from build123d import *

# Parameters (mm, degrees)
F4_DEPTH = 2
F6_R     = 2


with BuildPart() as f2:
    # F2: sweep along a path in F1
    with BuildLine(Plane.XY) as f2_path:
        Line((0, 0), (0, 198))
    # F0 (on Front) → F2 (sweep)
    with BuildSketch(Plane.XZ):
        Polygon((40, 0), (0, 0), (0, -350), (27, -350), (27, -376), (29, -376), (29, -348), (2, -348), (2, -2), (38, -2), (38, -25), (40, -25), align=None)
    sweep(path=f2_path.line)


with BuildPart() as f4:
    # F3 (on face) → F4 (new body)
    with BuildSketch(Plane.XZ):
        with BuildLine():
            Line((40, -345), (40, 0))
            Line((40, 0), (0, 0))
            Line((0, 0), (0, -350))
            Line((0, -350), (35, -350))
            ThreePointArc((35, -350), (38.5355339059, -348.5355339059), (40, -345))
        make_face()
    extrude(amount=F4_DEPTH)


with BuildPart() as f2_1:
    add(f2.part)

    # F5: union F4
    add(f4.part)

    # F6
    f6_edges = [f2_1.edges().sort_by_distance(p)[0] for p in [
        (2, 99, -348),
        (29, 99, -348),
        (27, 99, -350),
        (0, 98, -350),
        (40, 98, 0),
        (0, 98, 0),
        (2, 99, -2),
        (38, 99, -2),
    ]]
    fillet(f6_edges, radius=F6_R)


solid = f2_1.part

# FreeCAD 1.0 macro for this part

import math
import FreeCAD as App
import Part
import Sketcher

V = App.Vector
Q = App.Units.Quantity


def edges_at(feature, points):
    """Names of the edges that pass closest to the given points."""
    edges = feature.Shape.Edges
    near = lambda p: min(range(len(edges)), key=lambda i: edges[i].distToShape(Part.Vertex(*p))[0])
    return sorted({f"Edge{near(p) + 1}" for p in points})


def add_polygon(sketch, points):
    """Adds a closed chain of lines whose ends are joined by coincident constraints."""
    first, n = sketch.GeometryCount, len(points)
    for a, b in zip(points, points[1:] + points[:1]):
        sketch.addGeometry(Part.LineSegment(App.Vector(*a, 0), App.Vector(*b, 0)), False)
    for i in range(n):
        sketch.addConstraint(Sketcher.Constraint("Coincident", first + i, 2, first + (i + 1) % n, 1))

doc = App.newDocument("Part")
params = doc.addObject("Spreadsheet::Sheet", "Params")
for row, (alias, value) in enumerate([
    ("sketch1_width", "40 mm"),
    ("sketch1_width2", "27 mm"),
    ("sketch1_width3", "2 mm"),
    ("sketch1_height", "350 mm"),
    ("sketch1_height2", "26 mm"),
    ("sketch2_height", "198 mm"),
    ("sketch3_radius", "5 mm"),
    ("sketch3_width", "40 mm"),
    ("sketch3_height", "345 mm"),
    ("pad1_length", "2 mm"),
    ("fillet_radius", "2 mm"),
], start=1):
    params.set(f"A{row}", alias)
    params.set(f"B{row}", "=" + value)
    params.setAlias(f"B{row}", alias)

body = doc.addObject("PartDesign::Body", "Body")

sketch1 = body.newObject("Sketcher::SketchObject", "Sketch")
sketch1.AttachmentSupport = (doc.getObject("XZ_Plane"), [""])
sketch1.MapMode = "FlatFace"
add_polygon(sketch1, [(40, 0), (0, 0), (0, -350), (27, -350), (27, -376), (29, -376), (29, -348), (2, -348), (2, -2), (38, -2), (38, -25), (40, -25)])
sketch1.addConstraint(Sketcher.Constraint("Horizontal", 0))
sketch1.addConstraint(Sketcher.Constraint("Vertical", 1))
sketch1.addConstraint(Sketcher.Constraint("Horizontal", 2))
sketch1.addConstraint(Sketcher.Constraint("Vertical", 3))
sketch1.addConstraint(Sketcher.Constraint("Horizontal", 4))
sketch1.addConstraint(Sketcher.Constraint("Vertical", 5))
sketch1.addConstraint(Sketcher.Constraint("Horizontal", 6))
sketch1.addConstraint(Sketcher.Constraint("Vertical", 7))
sketch1.addConstraint(Sketcher.Constraint("Horizontal", 8))
sketch1.addConstraint(Sketcher.Constraint("Vertical", 9))
sketch1.addConstraint(Sketcher.Constraint("Horizontal", 10))
sketch1.addConstraint(Sketcher.Constraint("Vertical", 11))
sketch1.addConstraint(Sketcher.Constraint("Coincident", 0, 2, -1, 1))
sketch1.addConstraint(Sketcher.Constraint("Equal", 2, 6))
sketch1.addConstraint(Sketcher.Constraint("Equal", 4, 10))
sketch1.addConstraint(Sketcher.Constraint("DistanceX", 0, 2, 0, 1, Q("40 mm")))
sketch1.addConstraint(Sketcher.Constraint("DistanceX", 2, 1, 2, 2, Q("27 mm")))
sketch1.addConstraint(Sketcher.Constraint("DistanceX", 4, 1, 4, 2, Q("2 mm")))
sketch1.addConstraint(Sketcher.Constraint("DistanceY", 1, 2, 1, 1, Q("350 mm")))
sketch1.addConstraint(Sketcher.Constraint("DistanceY", 3, 2, 3, 1, Q("26 mm")))
sketch1.addConstraint(Sketcher.Constraint("DistanceY", 5, 1, 5, 2, Q("28 mm")))
sketch1.addConstraint(Sketcher.Constraint("DistanceY", 7, 1, 7, 2, Q("346 mm")))
sketch1.addConstraint(Sketcher.Constraint("DistanceY", 9, 2, 9, 1, Q("23 mm")))
sketch1.setExpression("Constraints[27]", "Params.sketch1_width")
sketch1.setExpression("Constraints[28]", "Params.sketch1_width2")
sketch1.setExpression("Constraints[29]", "Params.sketch1_width3")
sketch1.setExpression("Constraints[30]", "Params.sketch1_height")
sketch1.setExpression("Constraints[31]", "Params.sketch1_height2")

sketch2 = body.newObject("Sketcher::SketchObject", "Sketch001")
sketch2.AttachmentSupport = (doc.getObject("XY_Plane"), [""])
sketch2.MapMode = "FlatFace"
sketch2.addGeometry(Part.LineSegment(V(0, 0, 0), V(0, 198, 0)), False)
sketch2.addConstraint(Sketcher.Constraint("Vertical", 0))
sketch2.addConstraint(Sketcher.Constraint("Coincident", 0, 1, -1, 1))
sketch2.addConstraint(Sketcher.Constraint("DistanceY", 0, 1, 0, 2, Q("198 mm")))
sketch2.setExpression("Constraints[2]", "Params.sketch2_height")
doc.recompute()

additivepipe = body.newObject("PartDesign::AdditivePipe", "AdditivePipe")
additivepipe.Profile = sketch1
additivepipe.Spine = (sketch2, ["Edge1"])
body2 = doc.addObject("PartDesign::Body", "Body001")

sketch3 = body2.newObject("Sketcher::SketchObject", "Sketch002")
sketch3.AttachmentSupport = (doc.getObject("XZ_Plane001"), [""])
sketch3.MapMode = "FlatFace"
sketch3.addGeometry(Part.LineSegment(V(40, -345, 0), V(40, 0, 0)), False)
sketch3.addGeometry(Part.LineSegment(V(40, 0, 0), V(0, 0, 0)), False)
sketch3.addGeometry(Part.LineSegment(V(0, 0, 0), V(0, -350, 0)), False)
sketch3.addGeometry(Part.LineSegment(V(0, -350, 0), V(35, -350, 0)), False)
sketch3.addGeometry(Part.ArcOfCircle(Part.Circle(V(35, -345, 0), V(0, 0, 1), 5), math.radians(-90), math.radians(0)), False)
sketch3.addConstraint(Sketcher.Constraint("Coincident", 0, 2, 1, 1))
sketch3.addConstraint(Sketcher.Constraint("Coincident", 1, 2, 2, 1))
sketch3.addConstraint(Sketcher.Constraint("Coincident", 2, 2, 3, 1))
sketch3.addConstraint(Sketcher.Constraint("Tangent", 3, 2, 4, 1))
sketch3.addConstraint(Sketcher.Constraint("Tangent", 4, 2, 0, 1))
sketch3.addConstraint(Sketcher.Constraint("Vertical", 0))
sketch3.addConstraint(Sketcher.Constraint("Horizontal", 1))
sketch3.addConstraint(Sketcher.Constraint("Vertical", 2))
sketch3.addConstraint(Sketcher.Constraint("Horizontal", 3))
sketch3.addConstraint(Sketcher.Constraint("Coincident", 1, 2, -1, 1))
sketch3.addConstraint(Sketcher.Constraint("Radius", 4, Q("5 mm")))
sketch3.addConstraint(Sketcher.Constraint("DistanceX", 1, 2, 1, 1, Q("40 mm")))
sketch3.addConstraint(Sketcher.Constraint("DistanceY", 0, 1, 0, 2, Q("345 mm")))
sketch3.setExpression("Constraints[10]", "Params.sketch3_radius")
sketch3.setExpression("Constraints[11]", "Params.sketch3_width")
sketch3.setExpression("Constraints[12]", "Params.sketch3_height")
pad1 = body2.newObject("PartDesign::Pad", "Pad")
pad1.Profile = sketch3
pad1.setExpression("Length", "Params.pad1_length")
doc.recompute()

boolean = body.newObject("PartDesign::Boolean", "Boolean")
boolean.Type = "Fuse"
boolean.addObjects([body2])
doc.recompute()

fillet = body.newObject("PartDesign::Fillet", "Fillet")
fillet.Base = (boolean, edges_at(boolean, [
    (2, 99, -348),
    (29, 99, -348),
    (27, 99, -350),
    (0, 98, -350),
    (40, 98, 0),
    (0, 98, 0),
    (2, 99, -2),
    (38, 99, -2),
]))
fillet.setExpression("Radius", "Params.fillet_radius")

doc.recompute()
